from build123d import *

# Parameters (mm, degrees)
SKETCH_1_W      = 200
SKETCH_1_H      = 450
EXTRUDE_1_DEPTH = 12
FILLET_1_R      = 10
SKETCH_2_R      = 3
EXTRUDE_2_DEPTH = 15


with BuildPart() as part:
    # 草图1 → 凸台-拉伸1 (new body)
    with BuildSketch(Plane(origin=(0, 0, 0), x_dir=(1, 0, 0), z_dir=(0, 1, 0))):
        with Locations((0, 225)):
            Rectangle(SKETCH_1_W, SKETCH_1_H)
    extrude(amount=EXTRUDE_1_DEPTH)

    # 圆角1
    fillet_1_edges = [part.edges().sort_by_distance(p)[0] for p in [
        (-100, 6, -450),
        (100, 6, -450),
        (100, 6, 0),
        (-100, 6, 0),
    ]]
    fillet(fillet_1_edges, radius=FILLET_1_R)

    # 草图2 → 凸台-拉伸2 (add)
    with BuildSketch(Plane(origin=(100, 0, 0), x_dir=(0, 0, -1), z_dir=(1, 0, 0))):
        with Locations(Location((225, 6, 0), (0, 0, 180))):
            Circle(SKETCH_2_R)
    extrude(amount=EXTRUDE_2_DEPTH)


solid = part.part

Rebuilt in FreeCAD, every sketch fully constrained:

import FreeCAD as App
import Part
import Sketcher

V = App.Vector
Q = App.Units.Quantity


def edges_at(feature, points):
    """Names of the edges that pass closest to the given points."""
    edges = feature.Shape.Edges
    near = lambda p: min(range(len(edges)), key=lambda i: edges[i].distToShape(Part.Vertex(*p))[0])
    return sorted({f"Edge{near(p) + 1}" for p in points})

doc = App.newDocument("Part")
body = doc.addObject("PartDesign::Body", "Body")

sketch1 = body.newObject("Sketcher::SketchObject", "Sketch")
sketch1.AttachmentSupport = (doc.getObject("XZ_Plane"), [""])
sketch1.MapMode = "FlatFace"
sketch1.addGeometry([
    Part.LineSegment(V(-100, -450, 0), V(-100, 0, 0)),
    Part.LineSegment(V(-100, 0, 0), V(100, 0, 0)),
    Part.LineSegment(V(100, 0, 0), V(100, -450, 0)),
    Part.LineSegment(V(100, -450, 0), V(-100, -450, 0)),
], False)
sketch1.addConstraint([
    Sketcher.Constraint("Coincident", 0, 2, 1, 1),
    Sketcher.Constraint("Coincident", 1, 2, 2, 1),
    Sketcher.Constraint("Coincident", 2, 2, 3, 1),
    Sketcher.Constraint("Coincident", 3, 2, 0, 1),
    Sketcher.Constraint("Vertical", 0),
    Sketcher.Constraint("Horizontal", 1),
    Sketcher.Constraint("Vertical", 2),
    Sketcher.Constraint("Horizontal", 3),
    Sketcher.Constraint("Symmetric", 0, 2, 1, 2, -1, 1),
    Sketcher.Constraint("DistanceX", 1, 1, 1, 2, Q("200 mm")),
    Sketcher.Constraint("DistanceY", 0, 1, 0, 2, Q("450 mm")),
])
pad1 = body.newObject("PartDesign::Pad", "Pad")
pad1.Profile = sketch1
pad1.Length = 12
pad1.Reversed = True
doc.recompute()

fillet = body.newObject("PartDesign::Fillet", "Fillet")
fillet.Base = (pad1, edges_at(pad1, [
    (-100, 6, -450),
    (100, 6, -450),
    (100, 6, 0),
    (-100, 6, 0),
]))
fillet.Radius = 10

sketch2 = body.newObject("Sketcher::SketchObject", "Sketch001")
sketch2.AttachmentSupport = (doc.getObject("YZ_Plane"), [""])
sketch2.MapMode = "FlatFace"
sketch2.AttachmentOffset = App.Placement(V(0, 0, 100), App.Rotation())
sketch2.addGeometry(Part.Circle(V(6, -225, 0), V(0, 0, 1), 3), False)
sketch2.addConstraint([
    Sketcher.Constraint("Diameter", 0, Q("6 mm")),
    Sketcher.Constraint("DistanceX", -1, 1, 0, 3, Q("6 mm")),
    Sketcher.Constraint("DistanceY", 0, 3, -1, 1, Q("225 mm")),
])
pad2 = body.newObject("PartDesign::Pad", "Pad001")
pad2.Profile = sketch2
pad2.Length = 15

doc.recompute()
